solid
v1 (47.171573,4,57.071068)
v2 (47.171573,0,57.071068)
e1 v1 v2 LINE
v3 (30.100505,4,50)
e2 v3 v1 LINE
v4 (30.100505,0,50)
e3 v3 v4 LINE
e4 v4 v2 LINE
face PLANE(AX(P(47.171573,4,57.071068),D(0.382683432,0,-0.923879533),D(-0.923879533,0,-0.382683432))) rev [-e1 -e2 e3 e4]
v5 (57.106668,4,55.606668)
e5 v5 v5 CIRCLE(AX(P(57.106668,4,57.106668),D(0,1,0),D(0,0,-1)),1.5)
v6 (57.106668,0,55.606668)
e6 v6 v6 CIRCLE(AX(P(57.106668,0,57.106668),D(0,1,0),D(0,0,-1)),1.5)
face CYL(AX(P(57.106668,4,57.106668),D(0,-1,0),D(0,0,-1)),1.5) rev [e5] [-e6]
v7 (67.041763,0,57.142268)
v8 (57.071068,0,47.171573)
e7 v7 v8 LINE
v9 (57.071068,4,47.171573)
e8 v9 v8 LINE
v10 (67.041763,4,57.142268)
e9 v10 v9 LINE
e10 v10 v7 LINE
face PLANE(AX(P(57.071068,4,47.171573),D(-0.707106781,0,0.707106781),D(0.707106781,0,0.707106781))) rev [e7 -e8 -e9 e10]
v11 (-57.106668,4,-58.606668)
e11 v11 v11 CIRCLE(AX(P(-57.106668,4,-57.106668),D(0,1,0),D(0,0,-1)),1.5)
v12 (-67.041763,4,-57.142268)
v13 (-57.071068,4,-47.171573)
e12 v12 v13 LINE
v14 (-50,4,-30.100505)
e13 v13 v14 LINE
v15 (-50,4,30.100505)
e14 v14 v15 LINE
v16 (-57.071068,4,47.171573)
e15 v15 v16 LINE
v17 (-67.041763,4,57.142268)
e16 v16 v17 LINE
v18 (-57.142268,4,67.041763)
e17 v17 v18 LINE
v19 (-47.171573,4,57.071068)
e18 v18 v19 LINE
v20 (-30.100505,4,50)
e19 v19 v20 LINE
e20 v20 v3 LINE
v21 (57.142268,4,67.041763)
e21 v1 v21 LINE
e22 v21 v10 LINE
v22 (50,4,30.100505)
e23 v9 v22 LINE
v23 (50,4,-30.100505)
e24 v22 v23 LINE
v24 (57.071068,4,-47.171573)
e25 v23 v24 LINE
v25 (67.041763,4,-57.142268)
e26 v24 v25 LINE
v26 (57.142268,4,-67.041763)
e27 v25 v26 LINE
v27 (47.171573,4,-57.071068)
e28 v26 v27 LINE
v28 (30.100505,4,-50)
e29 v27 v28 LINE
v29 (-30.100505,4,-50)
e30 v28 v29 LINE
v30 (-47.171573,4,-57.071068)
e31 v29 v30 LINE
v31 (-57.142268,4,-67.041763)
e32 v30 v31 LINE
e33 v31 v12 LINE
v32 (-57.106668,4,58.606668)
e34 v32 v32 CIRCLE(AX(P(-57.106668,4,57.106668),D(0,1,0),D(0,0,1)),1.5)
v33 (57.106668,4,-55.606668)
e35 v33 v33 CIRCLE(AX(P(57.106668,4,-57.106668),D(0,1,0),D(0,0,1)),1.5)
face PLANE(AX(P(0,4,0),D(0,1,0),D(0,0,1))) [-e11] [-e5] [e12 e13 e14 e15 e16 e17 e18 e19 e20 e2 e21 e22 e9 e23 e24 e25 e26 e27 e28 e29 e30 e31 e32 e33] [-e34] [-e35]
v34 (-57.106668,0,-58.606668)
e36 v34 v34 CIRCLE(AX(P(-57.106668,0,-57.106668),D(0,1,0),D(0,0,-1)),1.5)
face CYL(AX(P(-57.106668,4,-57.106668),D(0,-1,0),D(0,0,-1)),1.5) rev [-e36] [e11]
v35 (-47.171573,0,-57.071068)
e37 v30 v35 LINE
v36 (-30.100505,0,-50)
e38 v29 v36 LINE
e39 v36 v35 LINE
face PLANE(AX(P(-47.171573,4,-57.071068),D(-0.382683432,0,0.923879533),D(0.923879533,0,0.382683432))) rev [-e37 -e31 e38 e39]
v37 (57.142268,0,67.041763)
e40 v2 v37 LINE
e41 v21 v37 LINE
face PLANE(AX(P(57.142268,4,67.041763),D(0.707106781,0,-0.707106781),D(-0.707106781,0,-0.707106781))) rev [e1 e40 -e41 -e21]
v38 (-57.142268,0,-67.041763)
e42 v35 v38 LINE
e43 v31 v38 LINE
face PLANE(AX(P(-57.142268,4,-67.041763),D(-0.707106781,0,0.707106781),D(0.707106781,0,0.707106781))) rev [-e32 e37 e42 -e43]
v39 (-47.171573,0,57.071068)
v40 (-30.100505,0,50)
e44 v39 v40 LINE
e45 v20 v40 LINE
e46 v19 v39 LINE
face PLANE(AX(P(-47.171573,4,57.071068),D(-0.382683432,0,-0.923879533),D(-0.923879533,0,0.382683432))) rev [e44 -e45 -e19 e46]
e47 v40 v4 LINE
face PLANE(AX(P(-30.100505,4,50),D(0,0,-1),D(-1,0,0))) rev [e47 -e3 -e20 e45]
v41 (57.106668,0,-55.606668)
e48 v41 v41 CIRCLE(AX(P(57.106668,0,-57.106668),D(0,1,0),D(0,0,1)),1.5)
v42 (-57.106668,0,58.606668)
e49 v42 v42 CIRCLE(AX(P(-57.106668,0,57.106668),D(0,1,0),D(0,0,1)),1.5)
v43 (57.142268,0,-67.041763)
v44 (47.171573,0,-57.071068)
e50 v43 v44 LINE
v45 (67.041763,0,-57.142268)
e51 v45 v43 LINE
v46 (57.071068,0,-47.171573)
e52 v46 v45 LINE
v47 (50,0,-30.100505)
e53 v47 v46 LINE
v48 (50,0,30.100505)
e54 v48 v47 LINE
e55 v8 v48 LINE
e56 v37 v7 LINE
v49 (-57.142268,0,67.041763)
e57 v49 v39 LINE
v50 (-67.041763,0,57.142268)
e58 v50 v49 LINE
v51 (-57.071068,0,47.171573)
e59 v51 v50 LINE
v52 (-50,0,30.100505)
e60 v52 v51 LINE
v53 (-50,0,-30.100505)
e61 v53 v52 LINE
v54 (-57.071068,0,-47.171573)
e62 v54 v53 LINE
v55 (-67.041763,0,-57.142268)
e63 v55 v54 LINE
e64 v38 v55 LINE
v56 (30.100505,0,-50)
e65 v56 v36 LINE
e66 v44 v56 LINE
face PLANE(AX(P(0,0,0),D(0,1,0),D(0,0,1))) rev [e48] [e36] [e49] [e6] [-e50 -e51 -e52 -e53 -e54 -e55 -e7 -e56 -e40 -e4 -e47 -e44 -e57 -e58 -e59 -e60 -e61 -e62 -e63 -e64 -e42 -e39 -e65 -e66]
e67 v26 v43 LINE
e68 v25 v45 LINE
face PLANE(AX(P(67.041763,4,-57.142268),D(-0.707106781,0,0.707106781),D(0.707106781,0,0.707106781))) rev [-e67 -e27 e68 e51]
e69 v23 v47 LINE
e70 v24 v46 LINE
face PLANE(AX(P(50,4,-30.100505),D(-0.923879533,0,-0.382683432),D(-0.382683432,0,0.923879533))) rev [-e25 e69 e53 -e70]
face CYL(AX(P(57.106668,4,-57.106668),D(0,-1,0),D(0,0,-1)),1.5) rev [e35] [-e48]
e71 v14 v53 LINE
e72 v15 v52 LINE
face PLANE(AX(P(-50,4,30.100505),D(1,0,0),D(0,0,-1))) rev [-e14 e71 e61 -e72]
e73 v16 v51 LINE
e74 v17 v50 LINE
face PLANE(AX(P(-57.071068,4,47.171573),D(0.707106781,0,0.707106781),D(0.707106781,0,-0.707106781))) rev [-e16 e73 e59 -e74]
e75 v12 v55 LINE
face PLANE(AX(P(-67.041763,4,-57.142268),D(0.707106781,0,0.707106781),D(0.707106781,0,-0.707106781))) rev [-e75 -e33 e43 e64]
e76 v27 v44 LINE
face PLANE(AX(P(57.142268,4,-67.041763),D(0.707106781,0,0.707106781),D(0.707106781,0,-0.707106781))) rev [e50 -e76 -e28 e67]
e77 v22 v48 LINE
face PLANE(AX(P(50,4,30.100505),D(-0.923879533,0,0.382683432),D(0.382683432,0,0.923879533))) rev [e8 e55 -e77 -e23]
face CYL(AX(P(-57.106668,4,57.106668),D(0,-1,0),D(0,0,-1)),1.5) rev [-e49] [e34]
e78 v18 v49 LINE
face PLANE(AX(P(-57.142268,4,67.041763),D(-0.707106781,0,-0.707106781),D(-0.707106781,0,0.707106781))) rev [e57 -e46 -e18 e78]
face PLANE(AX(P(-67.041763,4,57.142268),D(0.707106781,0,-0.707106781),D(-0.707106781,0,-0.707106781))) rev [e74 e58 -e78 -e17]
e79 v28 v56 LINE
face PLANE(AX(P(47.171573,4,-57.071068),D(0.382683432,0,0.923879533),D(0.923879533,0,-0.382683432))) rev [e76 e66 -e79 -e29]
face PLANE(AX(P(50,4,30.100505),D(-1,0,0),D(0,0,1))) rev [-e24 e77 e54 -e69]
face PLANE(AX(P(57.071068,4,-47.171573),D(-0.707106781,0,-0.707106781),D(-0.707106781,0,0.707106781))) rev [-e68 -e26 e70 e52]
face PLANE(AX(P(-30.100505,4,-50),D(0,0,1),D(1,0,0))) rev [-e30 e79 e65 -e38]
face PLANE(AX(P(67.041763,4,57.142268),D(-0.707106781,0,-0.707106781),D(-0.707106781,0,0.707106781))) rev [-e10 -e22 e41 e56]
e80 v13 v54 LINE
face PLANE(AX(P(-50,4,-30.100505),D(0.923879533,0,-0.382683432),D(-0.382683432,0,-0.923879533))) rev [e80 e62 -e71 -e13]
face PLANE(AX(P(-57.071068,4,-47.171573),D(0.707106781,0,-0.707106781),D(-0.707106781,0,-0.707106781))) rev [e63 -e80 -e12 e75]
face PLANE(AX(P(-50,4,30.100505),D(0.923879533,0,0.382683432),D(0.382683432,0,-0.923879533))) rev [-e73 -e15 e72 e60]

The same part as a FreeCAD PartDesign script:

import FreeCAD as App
import Part
import Sketcher
Q = App.Units.Quantity


def add_polygon(sketch, points):
    """Adds a closed chain of lines whose ends are joined by coincident constraints."""
    first, n = sketch.GeometryCount, len(points)
    for a, b in zip(points, points[1:] + points[:1]):
        sketch.addGeometry(Part.LineSegment(App.Vector(*a, 0), App.Vector(*b, 0)), False)
    for i in range(n):
        sketch.addConstraint(Sketcher.Constraint("Coincident", first + i, 2, first + (i + 1) % n, 1))

doc = App.newDocument("Part")
body = doc.addObject("PartDesign::Body", "Body")

# Sketch on XZ plane
sketch1 = body.newObject("Sketcher::SketchObject", "Sketch")
sketch1.AttachmentSupport = (doc.getObject("XZ_Plane"), [""])
sketch1.MapMode = "FlatFace"
add_polygon(sketch1, [(-30.1, 50), (30.1, 50), (47.2, 57.1), (57.1, 67), (67, 57.1), (57.1, 47.2), (50, 30.1), (50, -30.1), (57.1, -47.2), (67, -57.1), (57.1, -67), (47.2, -57.1), (30.1, -50), (-30.1, -50), (-47.2, -57.1), (-57.1, -67), (-67, -57.1), (-57.1, -47.2), (-50, -30.1), (-50, 30.1), (-57.1, 47.2), (-67, 57.1), (-57.1, 67), (-47.2, 57.1)])  # lines 0-23
sketch1.addGeometry(Part.Circle(App.Vector(-57.1, 57.1, 0), App.Vector(0, 0, 1), 1.5), False)  # 24
sketch1.addGeometry(Part.Circle(App.Vector(57.1, 57.1, 0), App.Vector(0, 0, 1), 1.5), False)  # 25
sketch1.addGeometry(Part.Circle(App.Vector(-57.1, -57.1, 0), App.Vector(0, 0, 1), 1.5), False)  # 26
sketch1.addGeometry(Part.Circle(App.Vector(57.1, -57.1, 0), App.Vector(0, 0, 1), 1.5), False)  # 27
sketch1.addConstraint(Sketcher.Constraint("Horizontal", 0))
sketch1.addConstraint(Sketcher.Constraint("Vertical", 6))
sketch1.addConstraint(Sketcher.Constraint("Horizontal", 12))
sketch1.addConstraint(Sketcher.Constraint("Vertical", 18))
sketch1.addConstraint(Sketcher.Constraint("Equal", 24, 25))
sketch1.addConstraint(Sketcher.Constraint("Equal", 25, 26))
sketch1.addConstraint(Sketcher.Constraint("Equal", 26, 27))
sketch1.addConstraint(Sketcher.Constraint("Symmetric", 25, 3, 26, 3, -1, 1))
sketch1.addConstraint(Sketcher.Constraint("Symmetric", 24, 3, 27, 3, -1, 1))
sketch1.addConstraint(Sketcher.Constraint("Symmetric", 0, 2, 12, 2, -1, 1))
sketch1.addConstraint(Sketcher.Constraint("Symmetric", 1, 2, 13, 2, -1, 1))
sketch1.addConstraint(Sketcher.Constraint("Symmetric", 2, 2, 14, 2, -1, 1))
sketch1.addConstraint(Sketcher.Constraint("Symmetric", 3, 2, 15, 2, -1, 1))
sketch1.addConstraint(Sketcher.Constraint("Symmetric", 4, 2, 16, 2, -1, 1))
sketch1.addConstraint(Sketcher.Constraint("Symmetric", 5, 2, 17, 2, -1, 1))
sketch1.addConstraint(Sketcher.Constraint("Symmetric", 7, 2, 19, 2, -1, 1))
sketch1.addConstraint(Sketcher.Constraint("Symmetric", 8, 2, 20, 2, -1, 1))
sketch1.addConstraint(Sketcher.Constraint("Symmetric", 9, 2, 21, 2, -1, 1))
sketch1.addConstraint(Sketcher.Constraint("Symmetric", 10, 2, 22, 2, -1, 1))
sketch1.addConstraint(Sketcher.Constraint("Symmetric", 24, 3, 25, 3, -2))
sketch1.addConstraint(Sketcher.Constraint("Symmetric", 10, 2, 13, 2, -2))
sketch1.addConstraint(Sketcher.Constraint("Symmetric", 9, 2, 14, 2, -2))
sketch1.addConstraint(Sketcher.Constraint("Symmetric", 8, 2, 15, 2, -2))
sketch1.addConstraint(Sketcher.Constraint("Symmetric", 7, 2, 16, 2, -2))
sketch1.addConstraint(Sketcher.Constraint("Perpendicular", 2, 3))
sketch1.addConstraint(Sketcher.Constraint("Perpendicular", 3, 4))
sketch1.addConstraint(Sketcher.Constraint("Perpendicular", 1, 7))
sketch1.addConstraint(Sketcher.Constraint("Perpendicular", 4, 8))
sketch1.addConstraint(Sketcher.Constraint("Perpendicular", 5, 11))
sketch1.addConstraint(Sketcher.Constraint("Perpendicular", 13, 19))
sketch1.addConstraint(Sketcher.Constraint("Perpendicular", 17, 23))
sketch1.addConstraint(Sketcher.Constraint("Horizontal", 6, 2, 17, 2))
sketch1.addConstraint(Sketcher.Constraint("Equal", 12, 6))
sketch1.addConstraint(Sketcher.Constraint("Equal", 2, 4))
sketch1.addConstraint(Sketcher.Constraint("Equal", 1, 5))
sketch1.addConstraint(Sketcher.Constraint("Diameter", 24, 3.0))
sketch1.addConstraint(Sketcher.Constraint("Distance", 3, 14.0))
sketch1.addConstraint(Sketcher.Constraint("DistanceY", -1, 1, 0, 2, 50.0))
sketch1.addConstraint(Sketcher.Constraint("Angle", 1, Q("22.5 deg")))
sketch1.addConstraint(Sketcher.Constraint("DistanceX", 0, 1, 0, 2, 60.20101))
sketch1.addConstraint(Sketcher.Constraint("DistanceY", 1, 2, 25, 3, 0.0356))
sketch1.addConstraint(Sketcher.Constraint("DistanceX", 25, 3, 2, 2, 0.0356))
sketch1.addConstraint(Sketcher.Constraint("DistanceY", 25, 3, 3, 2, 0.0356))
pad1 = body.newObject("PartDesign::Pad", "Pad")
pad1.Profile = sketch1
pad1.Length = 4
pad1.Reversed = True

doc.recompute()
